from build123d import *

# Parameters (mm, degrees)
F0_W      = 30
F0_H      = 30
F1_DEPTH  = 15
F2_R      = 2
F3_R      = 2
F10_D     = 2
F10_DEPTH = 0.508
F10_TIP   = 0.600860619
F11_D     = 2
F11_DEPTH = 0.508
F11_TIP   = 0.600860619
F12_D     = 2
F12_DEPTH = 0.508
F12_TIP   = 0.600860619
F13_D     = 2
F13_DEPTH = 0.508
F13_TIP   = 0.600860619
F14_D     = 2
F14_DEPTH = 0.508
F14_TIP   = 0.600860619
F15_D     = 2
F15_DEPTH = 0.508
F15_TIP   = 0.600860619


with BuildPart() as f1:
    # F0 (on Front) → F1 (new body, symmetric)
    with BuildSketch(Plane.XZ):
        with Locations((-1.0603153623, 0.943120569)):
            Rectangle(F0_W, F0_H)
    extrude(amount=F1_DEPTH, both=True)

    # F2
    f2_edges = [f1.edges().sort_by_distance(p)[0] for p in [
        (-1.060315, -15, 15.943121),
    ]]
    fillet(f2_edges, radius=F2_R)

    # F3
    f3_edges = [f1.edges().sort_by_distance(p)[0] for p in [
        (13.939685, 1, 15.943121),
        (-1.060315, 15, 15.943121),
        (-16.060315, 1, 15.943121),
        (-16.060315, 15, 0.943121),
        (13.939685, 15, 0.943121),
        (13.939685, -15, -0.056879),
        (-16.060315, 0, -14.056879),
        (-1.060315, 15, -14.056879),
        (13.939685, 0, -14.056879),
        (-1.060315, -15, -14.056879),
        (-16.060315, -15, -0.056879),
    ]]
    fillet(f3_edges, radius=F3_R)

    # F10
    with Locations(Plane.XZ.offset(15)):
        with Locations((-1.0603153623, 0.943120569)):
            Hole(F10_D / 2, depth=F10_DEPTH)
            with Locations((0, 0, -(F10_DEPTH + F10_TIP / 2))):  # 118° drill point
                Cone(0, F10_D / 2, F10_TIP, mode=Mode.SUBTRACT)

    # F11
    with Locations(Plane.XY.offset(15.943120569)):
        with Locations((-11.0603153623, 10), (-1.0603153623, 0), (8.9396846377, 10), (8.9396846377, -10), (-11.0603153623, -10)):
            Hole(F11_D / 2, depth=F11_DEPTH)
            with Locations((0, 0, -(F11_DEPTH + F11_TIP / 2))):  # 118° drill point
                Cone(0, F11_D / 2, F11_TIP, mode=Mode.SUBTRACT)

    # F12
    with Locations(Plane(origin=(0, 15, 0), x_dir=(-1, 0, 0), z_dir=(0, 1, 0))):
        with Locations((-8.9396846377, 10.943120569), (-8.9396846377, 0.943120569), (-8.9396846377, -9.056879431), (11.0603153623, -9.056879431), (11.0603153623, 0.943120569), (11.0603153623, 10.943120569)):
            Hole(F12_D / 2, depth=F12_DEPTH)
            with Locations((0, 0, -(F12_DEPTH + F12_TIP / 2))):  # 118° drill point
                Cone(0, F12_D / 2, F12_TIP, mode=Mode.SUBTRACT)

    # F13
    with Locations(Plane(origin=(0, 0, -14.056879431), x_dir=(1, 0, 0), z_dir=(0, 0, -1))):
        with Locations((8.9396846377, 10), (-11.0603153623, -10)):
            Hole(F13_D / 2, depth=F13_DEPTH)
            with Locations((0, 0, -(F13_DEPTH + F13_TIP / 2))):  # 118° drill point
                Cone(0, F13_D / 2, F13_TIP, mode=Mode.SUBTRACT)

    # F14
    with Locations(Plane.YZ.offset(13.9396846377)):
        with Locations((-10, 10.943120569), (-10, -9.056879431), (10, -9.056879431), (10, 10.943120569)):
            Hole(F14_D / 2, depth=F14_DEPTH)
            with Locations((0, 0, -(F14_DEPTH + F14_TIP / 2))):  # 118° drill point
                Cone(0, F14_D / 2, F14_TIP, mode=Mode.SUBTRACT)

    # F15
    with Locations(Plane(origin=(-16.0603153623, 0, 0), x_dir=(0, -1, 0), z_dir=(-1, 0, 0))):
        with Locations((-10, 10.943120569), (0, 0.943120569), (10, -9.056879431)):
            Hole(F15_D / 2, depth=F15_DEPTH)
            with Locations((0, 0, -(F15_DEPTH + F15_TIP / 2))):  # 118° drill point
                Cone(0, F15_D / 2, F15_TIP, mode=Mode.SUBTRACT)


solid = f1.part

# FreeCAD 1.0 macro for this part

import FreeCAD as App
import Part
import Sketcher
from FreeCAD import Vector
Q = App.Units.Quantity


def edges_at(feature, points):
    """Names of the edges that pass closest to the given points."""
    edges = feature.Shape.Edges
    near = lambda p: min(range(len(edges)), key=lambda i: edges[i].distToShape(Part.Vertex(*p))[0])
    return sorted({f"Edge{near(p) + 1}" for p in points})


def add_polygon(sketch, points):
    """Adds a closed chain of lines whose ends are joined by coincident constraints."""
    first, n = sketch.GeometryCount, len(points)
    for a, b in zip(points, points[1:] + points[:1]):
        sketch.addGeometry(Part.LineSegment(App.Vector(*a, 0), App.Vector(*b, 0)), False)
    for i in range(n):
        sketch.addConstraint(Sketcher.Constraint("Coincident", first + i, 2, first + (i + 1) % n, 1))

doc = App.newDocument("Part")
params = doc.addObject("Spreadsheet::Sheet", "Params")
for row, (alias, value) in enumerate([
    ("sketch1_width", "30 mm"),
    ("pad1_length", "30 mm"),
    ("fillet_radius", "2 mm"),
    ("fillet2_radius", "2 mm"),
    ("sketch2_diameter", "2 mm"),
    ("hole_diameter", "2 mm"),
    ("hole_depth", "0.508 mm"),
    ("sketch3_diameter", "2 mm"),
    ("hole2_diameter", "2 mm"),
    ("hole2_depth", "0.508 mm"),
    ("sketch4_diameter", "2 mm"),
    ("hole3_diameter", "2 mm"),
    ("hole3_depth", "0.508 mm"),
    ("sketch5_diameter", "2 mm"),
    ("hole4_diameter", "2 mm"),
    ("hole4_depth", "0.508 mm"),
    ("sketch6_diameter", "2 mm"),
    ("hole5_diameter", "2 mm"),
    ("hole5_depth", "0.508 mm"),
    ("sketch7_diameter", "2 mm"),
    ("hole6_diameter", "2 mm"),
    ("hole6_depth", "0.508 mm"),
], start=1):
    params.set(f"A{row}", alias)
    params.set(f"B{row}", "=" + value)
    params.setAlias(f"B{row}", alias)

body = doc.addObject("PartDesign::Body", "Body")

sketch1 = body.newObject("Sketcher::SketchObject", "Sketch")
sketch1.AttachmentSupport = (doc.getObject("XZ_Plane"), [""])
sketch1.MapMode = "FlatFace"
add_polygon(sketch1, [(-16, 16), (-16, -14), (14, -14), (14, 16)])
sketch1.addConstraint(Sketcher.Constraint("Vertical", 0))
sketch1.addConstraint(Sketcher.Constraint("Horizontal", 1))
sketch1.addConstraint(Sketcher.Constraint("Vertical", 2))
sketch1.addConstraint(Sketcher.Constraint("Horizontal", 3))
sketch1.addConstraint(Sketcher.Constraint("Equal", 3, 0))
sketch1.addConstraint(Sketcher.Constraint("DistanceX", 1, 1, 1, 2, Q("30 mm")))
sketch1.addConstraint(Sketcher.Constraint("DistanceY", 0, 2, -1, 1, Q("14.056879 mm")))
sketch1.addConstraint(Sketcher.Constraint("DistanceX", 0, 2, -1, 1, Q("16.060315 mm")))
sketch1.setExpression("Constraints[9]", "Params.sketch1_width")
pad1 = body.newObject("PartDesign::Pad", "Pad")
pad1.Profile = sketch1
pad1.setExpression("Length", "Params.pad1_length")
pad1.Midplane = True
doc.recompute()

fillet = body.newObject("PartDesign::Fillet", "Fillet")
fillet.Base = (pad1, edges_at(pad1, [(-1.06, -15, 15.943)]))
fillet.setExpression("Radius", "Params.fillet_radius")
doc.recompute()

fillet2 = body.newObject("PartDesign::Fillet", "Fillet001")
fillet2.Base = (fillet, ["Edge1"])
fillet2.UseAllEdges = True
fillet2.setExpression("Radius", "Params.fillet2_radius")

sketch2 = body.newObject("Sketcher::SketchObject", "Sketch001")
sketch2.AttachmentSupport = (doc.getObject("XZ_Plane"), [""])
sketch2.MapMode = "FlatFace"
sketch2.AttachmentOffset = App.Placement(Vector(0, 0, 15), App.Rotation())
sketch2.addGeometry(Part.Circle(Vector(-1.1, 0.9, 0), Vector(0, 0, 1), 1), False)
sketch2.addConstraint(Sketcher.Constraint("Diameter", 0, Q("2 mm")))
sketch2.addConstraint(Sketcher.Constraint("DistanceY", -1, 1, 0, 3, Q("0.943121 mm")))
sketch2.addConstraint(Sketcher.Constraint("DistanceX", 0, 3, -1, 1, Q("1.060315 mm")))
sketch2.setExpression("Constraints[0]", "Params.sketch2_diameter")
doc.recompute()
hole = body.newObject("PartDesign::Hole", "Hole")
hole.Profile = sketch2
hole.ThreadType = "None"
hole.setExpression("Diameter", "Params.hole_diameter")
hole.DepthType = "Dimension"
hole.setExpression("Depth", "Params.hole_depth")
hole.DrillPoint = "Angled"
hole.DrillPointAngle = 118

sketch3 = body.newObject("Sketcher::SketchObject", "Sketch002")
sketch3.AttachmentSupport = (doc.getObject("XY_Plane"), [""])
sketch3.MapMode = "FlatFace"
sketch3.AttachmentOffset = App.Placement(Vector(0, 0, 15.943121), App.Rotation())
sketch3.addGeometry(Part.Circle(Vector(-11.1, 10, 0), Vector(0, 0, 1), 1), False)
sketch3.addGeometry(Part.Circle(Vector(-1.1, 0, 0), Vector(0, 0, 1), 1), False)
sketch3.addGeometry(Part.Circle(Vector(8.9, 10, 0), Vector(0, 0, 1), 1), False)
sketch3.addGeometry(Part.Circle(Vector(8.9, -10, 0), Vector(0, 0, 1), 1), False)
sketch3.addGeometry(Part.Circle(Vector(-11.1, -10, 0), Vector(0, 0, 1), 1), False)
sketch3.addConstraint(Sketcher.Constraint("Equal", 0, 1))
sketch3.addConstraint(Sketcher.Constraint("Equal", 1, 2))
sketch3.addConstraint(Sketcher.Constraint("Equal", 2, 3))
sketch3.addConstraint(Sketcher.Constraint("Equal", 3, 4))
sketch3.addConstraint(Sketcher.Constraint("Symmetric", 2, 3, 3, 3, -1))
sketch3.addConstraint(Sketcher.Constraint("Symmetric", 0, 3, 4, 3, -1))
sketch3.addConstraint(Sketcher.Constraint("PointOnObject", 1, 3, -1))
sketch3.addConstraint(Sketcher.Constraint("Horizontal", 0, 3, 2, 3))
sketch3.addConstraint(Sketcher.Constraint("Diameter", 0, Q("2 mm")))
sketch3.addConstraint(Sketcher.Constraint("DistanceY", -1, 1, 0, 3, Q("10 mm")))
sketch3.addConstraint(Sketcher.Constraint("DistanceX", 0, 3, 1, 3, Q("10 mm")))
sketch3.addConstraint(Sketcher.Constraint("DistanceX", 1, 3, 2, 3, Q("10 mm")))
sketch3.addConstraint(Sketcher.Constraint("DistanceX", 0, 3, -1, 1, Q("11.060315 mm")))
sketch3.setExpression("Constraints[8]", "Params.sketch3_diameter")
doc.recompute()
hole2 = body.newObject("PartDesign::Hole", "Hole001")
hole2.Profile = sketch3
hole2.ThreadType = "None"
hole2.setExpression("Diameter", "Params.hole2_diameter")
hole2.DepthType = "Dimension"
hole2.setExpression("Depth", "Params.hole2_depth")
hole2.DrillPoint = "Angled"
hole2.DrillPointAngle = 118

sketch4 = body.newObject("Sketcher::SketchObject", "Sketch003")
sketch4.AttachmentSupport = (doc.getObject("XZ_Plane"), [""])
sketch4.MapMode = "FlatFace"
sketch4.AttachmentOffset = App.Placement(Vector(0, 0, -15), App.Rotation())
sketch4.addGeometry(Part.Circle(Vector(8.9, 10.9, 0), Vector(0, 0, 1), 1), False)
sketch4.addGeometry(Part.Circle(Vector(8.9, 0.9, 0), Vector(0, 0, 1), 1), False)
sketch4.addGeometry(Part.Circle(Vector(8.9, -9.1, 0), Vector(0, 0, 1), 1), False)
sketch4.addGeometry(Part.Circle(Vector(-11.1, -9.1, 0), Vector(0, 0, 1), 1), False)
sketch4.addGeometry(Part.Circle(Vector(-11.1, 0.9, 0), Vector(0, 0, 1), 1), False)
sketch4.addGeometry(Part.Circle(Vector(-11.1, 10.9, 0), Vector(0, 0, 1), 1), False)
sketch4.addConstraint(Sketcher.Constraint("Equal", 0, 1))
sketch4.addConstraint(Sketcher.Constraint("Equal", 1, 2))
sketch4.addConstraint(Sketcher.Constraint("Equal", 2, 3))
sketch4.addConstraint(Sketcher.Constraint("Equal", 3, 4))
sketch4.addConstraint(Sketcher.Constraint("Equal", 4, 5))
sketch4.addConstraint(Sketcher.Constraint("Horizontal", 2, 3, 3, 3))
sketch4.addConstraint(Sketcher.Constraint("Horizontal", 1, 3, 4, 3))
sketch4.addConstraint(Sketcher.Constraint("Horizontal", 0, 3, 5, 3))
sketch4.addConstraint(Sketcher.Constraint("Vertical", 0, 3, 1, 3))
sketch4.addConstraint(Sketcher.Constraint("Vertical", 1, 3, 2, 3))
sketch4.addConstraint(Sketcher.Constraint("Vertical", 3, 3, 4, 3))
sketch4.addConstraint(Sketcher.Constraint("Vertical", 4, 3, 5, 3))
sketch4.addConstraint(Sketcher.Constraint("Diameter", 0, Q("2 mm")))
sketch4.addConstraint(Sketcher.Constraint("DistanceY", 1, 3, 0, 3, Q("10 mm")))
sketch4.addConstraint(Sketcher.Constraint("DistanceY", 2, 3, 1, 3, Q("10 mm")))
sketch4.addConstraint(Sketcher.Constraint("DistanceX", 3, 3, 2, 3, Q("20 mm")))
sketch4.addConstraint(Sketcher.Constraint("DistanceY", -1, 1, 0, 3, Q("10.943121 mm")))
sketch4.addConstraint(Sketcher.Constraint("DistanceX", -1, 1, 0, 3, Q("8.939685 mm")))
sketch4.setExpression("Constraints[12]", "Params.sketch4_diameter")
doc.recompute()
hole3 = body.newObject("PartDesign::Hole", "Hole002")
hole3.Profile = sketch4
hole3.ThreadType = "None"
hole3.setExpression("Diameter", "Params.hole3_diameter")
hole3.DepthType = "Dimension"
hole3.setExpression("Depth", "Params.hole3_depth")
hole3.DrillPoint = "Angled"
hole3.DrillPointAngle = 118
hole3.Reversed = True

sketch5 = body.newObject("Sketcher::SketchObject", "Sketch004")
sketch5.AttachmentSupport = (doc.getObject("XY_Plane"), [""])
sketch5.MapMode = "FlatFace"
sketch5.AttachmentOffset = App.Placement(Vector(0, 0, -14.056879), App.Rotation())
sketch5.addGeometry(Part.Circle(Vector(8.9, -10, 0), Vector(0, 0, 1), 1), False)
sketch5.addGeometry(Part.Circle(Vector(-11.1, 10, 0), Vector(0, 0, 1), 1), False)
sketch5.addConstraint(Sketcher.Constraint("Equal", 0, 1))
sketch5.addConstraint(Sketcher.Constraint("Diameter", 0, Q("2 mm")))
sketch5.addConstraint(Sketcher.Constraint("DistanceY", 0, 3, -1, 1, Q("10 mm")))
sketch5.addConstraint(Sketcher.Constraint("DistanceY", -1, 1, 1, 3, Q("10 mm")))
sketch5.addConstraint(Sketcher.Constraint("DistanceX", 1, 3, 0, 3, Q("20 mm")))
sketch5.addConstraint(Sketcher.Constraint("DistanceX", -1, 1, 0, 3, Q("8.939685 mm")))
sketch5.setExpression("Constraints[1]", "Params.sketch5_diameter")
doc.recompute()
hole4 = body.newObject("PartDesign::Hole", "Hole003")
hole4.Profile = sketch5
hole4.ThreadType = "None"
hole4.setExpression("Diameter", "Params.hole4_diameter")
hole4.DepthType = "Dimension"
hole4.setExpression("Depth", "Params.hole4_depth")
hole4.DrillPoint = "Angled"
hole4.DrillPointAngle = 118
hole4.Reversed = True

sketch6 = body.newObject("Sketcher::SketchObject", "Sketch005")
sketch6.AttachmentSupport = (doc.getObject("YZ_Plane"), [""])
sketch6.MapMode = "FlatFace"
sketch6.AttachmentOffset = App.Placement(Vector(0, 0, 13.939685), App.Rotation())
sketch6.addGeometry(Part.Circle(Vector(-10, 10.9, 0), Vector(0, 0, 1), 1), False)
sketch6.addGeometry(Part.Circle(Vector(-10, -9.1, 0), Vector(0, 0, 1), 1), False)
sketch6.addGeometry(Part.Circle(Vector(10, -9.1, 0), Vector(0, 0, 1), 1), False)
sketch6.addGeometry(Part.Circle(Vector(10, 10.9, 0), Vector(0, 0, 1), 1), False)
sketch6.addConstraint(Sketcher.Constraint("Equal", 0, 1))
sketch6.addConstraint(Sketcher.Constraint("Equal", 1, 2))
sketch6.addConstraint(Sketcher.Constraint("Equal", 2, 3))
sketch6.addConstraint(Sketcher.Constraint("Symmetric", 1, 3, 2, 3, -2))
sketch6.addConstraint(Sketcher.Constraint("Symmetric", 0, 3, 3, 3, -2))
sketch6.addConstraint(Sketcher.Constraint("Vertical", 0, 3, 1, 3))
sketch6.addConstraint(Sketcher.Constraint("Diameter", 0, Q("2 mm")))
sketch6.addConstraint(Sketcher.Constraint("DistanceX", 0, 3, -1, 1, Q("10 mm")))
sketch6.addConstraint(Sketcher.Constraint("DistanceY", 1, 3, 0, 3, Q("20 mm")))
sketch6.addConstraint(Sketcher.Constraint("DistanceY", -1, 1, 0, 3, Q("10.943121 mm")))
sketch6.setExpression("Constraints[6]", "Params.sketch6_diameter")
doc.recompute()
hole5 = body.newObject("PartDesign::Hole", "Hole004")
hole5.Profile = sketch6
hole5.ThreadType = "None"
hole5.setExpression("Diameter", "Params.hole5_diameter")
hole5.DepthType = "Dimension"
hole5.setExpression("Depth", "Params.hole5_depth")
hole5.DrillPoint = "Angled"
hole5.DrillPointAngle = 118

sketch7 = body.newObject("Sketcher::SketchObject", "Sketch006")
sketch7.AttachmentSupport = (doc.getObject("YZ_Plane"), [""])
sketch7.MapMode = "FlatFace"
sketch7.AttachmentOffset = App.Placement(Vector(0, 0, -16.060315), App.Rotation())
sketch7.addGeometry(Part.Circle(Vector(10, 10.9, 0), Vector(0, 0, 1), 1), False)
sketch7.addGeometry(Part.Circle(Vector(0, 0.9, 0), Vector(0, 0, 1), 1), False)
sketch7.addGeometry(Part.Circle(Vector(-10, -9.1, 0), Vector(0, 0, 1), 1), False)
sketch7.addConstraint(Sketcher.Constraint("Equal", 0, 1))
sketch7.addConstraint(Sketcher.Constraint("Equal", 1, 2))
sketch7.addConstraint(Sketcher.Constraint("PointOnObject", 1, 3, -2))
sketch7.addConstraint(Sketcher.Constraint("Diameter", 0, Q("2 mm")))
sketch7.addConstraint(Sketcher.Constraint("DistanceX", -1, 1, 0, 3, Q("10 mm")))
sketch7.addConstraint(Sketcher.Constraint("DistanceX", 2, 3, -1, 1, Q("10 mm")))
sketch7.addConstraint(Sketcher.Constraint("DistanceY", 1, 3, 0, 3, Q("10 mm")))
sketch7.addConstraint(Sketcher.Constraint("DistanceY", 2, 3, 1, 3, Q("10 mm")))
sketch7.addConstraint(Sketcher.Constraint("DistanceY", -1, 1, 0, 3, Q("10.943121 mm")))
sketch7.setExpression("Constraints[3]", "Params.sketch7_diameter")
doc.recompute()
hole6 = body.newObject("PartDesign::Hole", "Hole005")
hole6.Profile = sketch7
hole6.ThreadType = "None"
hole6.setExpression("Diameter", "Params.hole6_diameter")
hole6.DepthType = "Dimension"
hole6.setExpression("Depth", "Params.hole6_depth")
hole6.DrillPoint = "Angled"
hole6.DrillPointAngle = 118
hole6.Reversed = True

doc.recompute()
